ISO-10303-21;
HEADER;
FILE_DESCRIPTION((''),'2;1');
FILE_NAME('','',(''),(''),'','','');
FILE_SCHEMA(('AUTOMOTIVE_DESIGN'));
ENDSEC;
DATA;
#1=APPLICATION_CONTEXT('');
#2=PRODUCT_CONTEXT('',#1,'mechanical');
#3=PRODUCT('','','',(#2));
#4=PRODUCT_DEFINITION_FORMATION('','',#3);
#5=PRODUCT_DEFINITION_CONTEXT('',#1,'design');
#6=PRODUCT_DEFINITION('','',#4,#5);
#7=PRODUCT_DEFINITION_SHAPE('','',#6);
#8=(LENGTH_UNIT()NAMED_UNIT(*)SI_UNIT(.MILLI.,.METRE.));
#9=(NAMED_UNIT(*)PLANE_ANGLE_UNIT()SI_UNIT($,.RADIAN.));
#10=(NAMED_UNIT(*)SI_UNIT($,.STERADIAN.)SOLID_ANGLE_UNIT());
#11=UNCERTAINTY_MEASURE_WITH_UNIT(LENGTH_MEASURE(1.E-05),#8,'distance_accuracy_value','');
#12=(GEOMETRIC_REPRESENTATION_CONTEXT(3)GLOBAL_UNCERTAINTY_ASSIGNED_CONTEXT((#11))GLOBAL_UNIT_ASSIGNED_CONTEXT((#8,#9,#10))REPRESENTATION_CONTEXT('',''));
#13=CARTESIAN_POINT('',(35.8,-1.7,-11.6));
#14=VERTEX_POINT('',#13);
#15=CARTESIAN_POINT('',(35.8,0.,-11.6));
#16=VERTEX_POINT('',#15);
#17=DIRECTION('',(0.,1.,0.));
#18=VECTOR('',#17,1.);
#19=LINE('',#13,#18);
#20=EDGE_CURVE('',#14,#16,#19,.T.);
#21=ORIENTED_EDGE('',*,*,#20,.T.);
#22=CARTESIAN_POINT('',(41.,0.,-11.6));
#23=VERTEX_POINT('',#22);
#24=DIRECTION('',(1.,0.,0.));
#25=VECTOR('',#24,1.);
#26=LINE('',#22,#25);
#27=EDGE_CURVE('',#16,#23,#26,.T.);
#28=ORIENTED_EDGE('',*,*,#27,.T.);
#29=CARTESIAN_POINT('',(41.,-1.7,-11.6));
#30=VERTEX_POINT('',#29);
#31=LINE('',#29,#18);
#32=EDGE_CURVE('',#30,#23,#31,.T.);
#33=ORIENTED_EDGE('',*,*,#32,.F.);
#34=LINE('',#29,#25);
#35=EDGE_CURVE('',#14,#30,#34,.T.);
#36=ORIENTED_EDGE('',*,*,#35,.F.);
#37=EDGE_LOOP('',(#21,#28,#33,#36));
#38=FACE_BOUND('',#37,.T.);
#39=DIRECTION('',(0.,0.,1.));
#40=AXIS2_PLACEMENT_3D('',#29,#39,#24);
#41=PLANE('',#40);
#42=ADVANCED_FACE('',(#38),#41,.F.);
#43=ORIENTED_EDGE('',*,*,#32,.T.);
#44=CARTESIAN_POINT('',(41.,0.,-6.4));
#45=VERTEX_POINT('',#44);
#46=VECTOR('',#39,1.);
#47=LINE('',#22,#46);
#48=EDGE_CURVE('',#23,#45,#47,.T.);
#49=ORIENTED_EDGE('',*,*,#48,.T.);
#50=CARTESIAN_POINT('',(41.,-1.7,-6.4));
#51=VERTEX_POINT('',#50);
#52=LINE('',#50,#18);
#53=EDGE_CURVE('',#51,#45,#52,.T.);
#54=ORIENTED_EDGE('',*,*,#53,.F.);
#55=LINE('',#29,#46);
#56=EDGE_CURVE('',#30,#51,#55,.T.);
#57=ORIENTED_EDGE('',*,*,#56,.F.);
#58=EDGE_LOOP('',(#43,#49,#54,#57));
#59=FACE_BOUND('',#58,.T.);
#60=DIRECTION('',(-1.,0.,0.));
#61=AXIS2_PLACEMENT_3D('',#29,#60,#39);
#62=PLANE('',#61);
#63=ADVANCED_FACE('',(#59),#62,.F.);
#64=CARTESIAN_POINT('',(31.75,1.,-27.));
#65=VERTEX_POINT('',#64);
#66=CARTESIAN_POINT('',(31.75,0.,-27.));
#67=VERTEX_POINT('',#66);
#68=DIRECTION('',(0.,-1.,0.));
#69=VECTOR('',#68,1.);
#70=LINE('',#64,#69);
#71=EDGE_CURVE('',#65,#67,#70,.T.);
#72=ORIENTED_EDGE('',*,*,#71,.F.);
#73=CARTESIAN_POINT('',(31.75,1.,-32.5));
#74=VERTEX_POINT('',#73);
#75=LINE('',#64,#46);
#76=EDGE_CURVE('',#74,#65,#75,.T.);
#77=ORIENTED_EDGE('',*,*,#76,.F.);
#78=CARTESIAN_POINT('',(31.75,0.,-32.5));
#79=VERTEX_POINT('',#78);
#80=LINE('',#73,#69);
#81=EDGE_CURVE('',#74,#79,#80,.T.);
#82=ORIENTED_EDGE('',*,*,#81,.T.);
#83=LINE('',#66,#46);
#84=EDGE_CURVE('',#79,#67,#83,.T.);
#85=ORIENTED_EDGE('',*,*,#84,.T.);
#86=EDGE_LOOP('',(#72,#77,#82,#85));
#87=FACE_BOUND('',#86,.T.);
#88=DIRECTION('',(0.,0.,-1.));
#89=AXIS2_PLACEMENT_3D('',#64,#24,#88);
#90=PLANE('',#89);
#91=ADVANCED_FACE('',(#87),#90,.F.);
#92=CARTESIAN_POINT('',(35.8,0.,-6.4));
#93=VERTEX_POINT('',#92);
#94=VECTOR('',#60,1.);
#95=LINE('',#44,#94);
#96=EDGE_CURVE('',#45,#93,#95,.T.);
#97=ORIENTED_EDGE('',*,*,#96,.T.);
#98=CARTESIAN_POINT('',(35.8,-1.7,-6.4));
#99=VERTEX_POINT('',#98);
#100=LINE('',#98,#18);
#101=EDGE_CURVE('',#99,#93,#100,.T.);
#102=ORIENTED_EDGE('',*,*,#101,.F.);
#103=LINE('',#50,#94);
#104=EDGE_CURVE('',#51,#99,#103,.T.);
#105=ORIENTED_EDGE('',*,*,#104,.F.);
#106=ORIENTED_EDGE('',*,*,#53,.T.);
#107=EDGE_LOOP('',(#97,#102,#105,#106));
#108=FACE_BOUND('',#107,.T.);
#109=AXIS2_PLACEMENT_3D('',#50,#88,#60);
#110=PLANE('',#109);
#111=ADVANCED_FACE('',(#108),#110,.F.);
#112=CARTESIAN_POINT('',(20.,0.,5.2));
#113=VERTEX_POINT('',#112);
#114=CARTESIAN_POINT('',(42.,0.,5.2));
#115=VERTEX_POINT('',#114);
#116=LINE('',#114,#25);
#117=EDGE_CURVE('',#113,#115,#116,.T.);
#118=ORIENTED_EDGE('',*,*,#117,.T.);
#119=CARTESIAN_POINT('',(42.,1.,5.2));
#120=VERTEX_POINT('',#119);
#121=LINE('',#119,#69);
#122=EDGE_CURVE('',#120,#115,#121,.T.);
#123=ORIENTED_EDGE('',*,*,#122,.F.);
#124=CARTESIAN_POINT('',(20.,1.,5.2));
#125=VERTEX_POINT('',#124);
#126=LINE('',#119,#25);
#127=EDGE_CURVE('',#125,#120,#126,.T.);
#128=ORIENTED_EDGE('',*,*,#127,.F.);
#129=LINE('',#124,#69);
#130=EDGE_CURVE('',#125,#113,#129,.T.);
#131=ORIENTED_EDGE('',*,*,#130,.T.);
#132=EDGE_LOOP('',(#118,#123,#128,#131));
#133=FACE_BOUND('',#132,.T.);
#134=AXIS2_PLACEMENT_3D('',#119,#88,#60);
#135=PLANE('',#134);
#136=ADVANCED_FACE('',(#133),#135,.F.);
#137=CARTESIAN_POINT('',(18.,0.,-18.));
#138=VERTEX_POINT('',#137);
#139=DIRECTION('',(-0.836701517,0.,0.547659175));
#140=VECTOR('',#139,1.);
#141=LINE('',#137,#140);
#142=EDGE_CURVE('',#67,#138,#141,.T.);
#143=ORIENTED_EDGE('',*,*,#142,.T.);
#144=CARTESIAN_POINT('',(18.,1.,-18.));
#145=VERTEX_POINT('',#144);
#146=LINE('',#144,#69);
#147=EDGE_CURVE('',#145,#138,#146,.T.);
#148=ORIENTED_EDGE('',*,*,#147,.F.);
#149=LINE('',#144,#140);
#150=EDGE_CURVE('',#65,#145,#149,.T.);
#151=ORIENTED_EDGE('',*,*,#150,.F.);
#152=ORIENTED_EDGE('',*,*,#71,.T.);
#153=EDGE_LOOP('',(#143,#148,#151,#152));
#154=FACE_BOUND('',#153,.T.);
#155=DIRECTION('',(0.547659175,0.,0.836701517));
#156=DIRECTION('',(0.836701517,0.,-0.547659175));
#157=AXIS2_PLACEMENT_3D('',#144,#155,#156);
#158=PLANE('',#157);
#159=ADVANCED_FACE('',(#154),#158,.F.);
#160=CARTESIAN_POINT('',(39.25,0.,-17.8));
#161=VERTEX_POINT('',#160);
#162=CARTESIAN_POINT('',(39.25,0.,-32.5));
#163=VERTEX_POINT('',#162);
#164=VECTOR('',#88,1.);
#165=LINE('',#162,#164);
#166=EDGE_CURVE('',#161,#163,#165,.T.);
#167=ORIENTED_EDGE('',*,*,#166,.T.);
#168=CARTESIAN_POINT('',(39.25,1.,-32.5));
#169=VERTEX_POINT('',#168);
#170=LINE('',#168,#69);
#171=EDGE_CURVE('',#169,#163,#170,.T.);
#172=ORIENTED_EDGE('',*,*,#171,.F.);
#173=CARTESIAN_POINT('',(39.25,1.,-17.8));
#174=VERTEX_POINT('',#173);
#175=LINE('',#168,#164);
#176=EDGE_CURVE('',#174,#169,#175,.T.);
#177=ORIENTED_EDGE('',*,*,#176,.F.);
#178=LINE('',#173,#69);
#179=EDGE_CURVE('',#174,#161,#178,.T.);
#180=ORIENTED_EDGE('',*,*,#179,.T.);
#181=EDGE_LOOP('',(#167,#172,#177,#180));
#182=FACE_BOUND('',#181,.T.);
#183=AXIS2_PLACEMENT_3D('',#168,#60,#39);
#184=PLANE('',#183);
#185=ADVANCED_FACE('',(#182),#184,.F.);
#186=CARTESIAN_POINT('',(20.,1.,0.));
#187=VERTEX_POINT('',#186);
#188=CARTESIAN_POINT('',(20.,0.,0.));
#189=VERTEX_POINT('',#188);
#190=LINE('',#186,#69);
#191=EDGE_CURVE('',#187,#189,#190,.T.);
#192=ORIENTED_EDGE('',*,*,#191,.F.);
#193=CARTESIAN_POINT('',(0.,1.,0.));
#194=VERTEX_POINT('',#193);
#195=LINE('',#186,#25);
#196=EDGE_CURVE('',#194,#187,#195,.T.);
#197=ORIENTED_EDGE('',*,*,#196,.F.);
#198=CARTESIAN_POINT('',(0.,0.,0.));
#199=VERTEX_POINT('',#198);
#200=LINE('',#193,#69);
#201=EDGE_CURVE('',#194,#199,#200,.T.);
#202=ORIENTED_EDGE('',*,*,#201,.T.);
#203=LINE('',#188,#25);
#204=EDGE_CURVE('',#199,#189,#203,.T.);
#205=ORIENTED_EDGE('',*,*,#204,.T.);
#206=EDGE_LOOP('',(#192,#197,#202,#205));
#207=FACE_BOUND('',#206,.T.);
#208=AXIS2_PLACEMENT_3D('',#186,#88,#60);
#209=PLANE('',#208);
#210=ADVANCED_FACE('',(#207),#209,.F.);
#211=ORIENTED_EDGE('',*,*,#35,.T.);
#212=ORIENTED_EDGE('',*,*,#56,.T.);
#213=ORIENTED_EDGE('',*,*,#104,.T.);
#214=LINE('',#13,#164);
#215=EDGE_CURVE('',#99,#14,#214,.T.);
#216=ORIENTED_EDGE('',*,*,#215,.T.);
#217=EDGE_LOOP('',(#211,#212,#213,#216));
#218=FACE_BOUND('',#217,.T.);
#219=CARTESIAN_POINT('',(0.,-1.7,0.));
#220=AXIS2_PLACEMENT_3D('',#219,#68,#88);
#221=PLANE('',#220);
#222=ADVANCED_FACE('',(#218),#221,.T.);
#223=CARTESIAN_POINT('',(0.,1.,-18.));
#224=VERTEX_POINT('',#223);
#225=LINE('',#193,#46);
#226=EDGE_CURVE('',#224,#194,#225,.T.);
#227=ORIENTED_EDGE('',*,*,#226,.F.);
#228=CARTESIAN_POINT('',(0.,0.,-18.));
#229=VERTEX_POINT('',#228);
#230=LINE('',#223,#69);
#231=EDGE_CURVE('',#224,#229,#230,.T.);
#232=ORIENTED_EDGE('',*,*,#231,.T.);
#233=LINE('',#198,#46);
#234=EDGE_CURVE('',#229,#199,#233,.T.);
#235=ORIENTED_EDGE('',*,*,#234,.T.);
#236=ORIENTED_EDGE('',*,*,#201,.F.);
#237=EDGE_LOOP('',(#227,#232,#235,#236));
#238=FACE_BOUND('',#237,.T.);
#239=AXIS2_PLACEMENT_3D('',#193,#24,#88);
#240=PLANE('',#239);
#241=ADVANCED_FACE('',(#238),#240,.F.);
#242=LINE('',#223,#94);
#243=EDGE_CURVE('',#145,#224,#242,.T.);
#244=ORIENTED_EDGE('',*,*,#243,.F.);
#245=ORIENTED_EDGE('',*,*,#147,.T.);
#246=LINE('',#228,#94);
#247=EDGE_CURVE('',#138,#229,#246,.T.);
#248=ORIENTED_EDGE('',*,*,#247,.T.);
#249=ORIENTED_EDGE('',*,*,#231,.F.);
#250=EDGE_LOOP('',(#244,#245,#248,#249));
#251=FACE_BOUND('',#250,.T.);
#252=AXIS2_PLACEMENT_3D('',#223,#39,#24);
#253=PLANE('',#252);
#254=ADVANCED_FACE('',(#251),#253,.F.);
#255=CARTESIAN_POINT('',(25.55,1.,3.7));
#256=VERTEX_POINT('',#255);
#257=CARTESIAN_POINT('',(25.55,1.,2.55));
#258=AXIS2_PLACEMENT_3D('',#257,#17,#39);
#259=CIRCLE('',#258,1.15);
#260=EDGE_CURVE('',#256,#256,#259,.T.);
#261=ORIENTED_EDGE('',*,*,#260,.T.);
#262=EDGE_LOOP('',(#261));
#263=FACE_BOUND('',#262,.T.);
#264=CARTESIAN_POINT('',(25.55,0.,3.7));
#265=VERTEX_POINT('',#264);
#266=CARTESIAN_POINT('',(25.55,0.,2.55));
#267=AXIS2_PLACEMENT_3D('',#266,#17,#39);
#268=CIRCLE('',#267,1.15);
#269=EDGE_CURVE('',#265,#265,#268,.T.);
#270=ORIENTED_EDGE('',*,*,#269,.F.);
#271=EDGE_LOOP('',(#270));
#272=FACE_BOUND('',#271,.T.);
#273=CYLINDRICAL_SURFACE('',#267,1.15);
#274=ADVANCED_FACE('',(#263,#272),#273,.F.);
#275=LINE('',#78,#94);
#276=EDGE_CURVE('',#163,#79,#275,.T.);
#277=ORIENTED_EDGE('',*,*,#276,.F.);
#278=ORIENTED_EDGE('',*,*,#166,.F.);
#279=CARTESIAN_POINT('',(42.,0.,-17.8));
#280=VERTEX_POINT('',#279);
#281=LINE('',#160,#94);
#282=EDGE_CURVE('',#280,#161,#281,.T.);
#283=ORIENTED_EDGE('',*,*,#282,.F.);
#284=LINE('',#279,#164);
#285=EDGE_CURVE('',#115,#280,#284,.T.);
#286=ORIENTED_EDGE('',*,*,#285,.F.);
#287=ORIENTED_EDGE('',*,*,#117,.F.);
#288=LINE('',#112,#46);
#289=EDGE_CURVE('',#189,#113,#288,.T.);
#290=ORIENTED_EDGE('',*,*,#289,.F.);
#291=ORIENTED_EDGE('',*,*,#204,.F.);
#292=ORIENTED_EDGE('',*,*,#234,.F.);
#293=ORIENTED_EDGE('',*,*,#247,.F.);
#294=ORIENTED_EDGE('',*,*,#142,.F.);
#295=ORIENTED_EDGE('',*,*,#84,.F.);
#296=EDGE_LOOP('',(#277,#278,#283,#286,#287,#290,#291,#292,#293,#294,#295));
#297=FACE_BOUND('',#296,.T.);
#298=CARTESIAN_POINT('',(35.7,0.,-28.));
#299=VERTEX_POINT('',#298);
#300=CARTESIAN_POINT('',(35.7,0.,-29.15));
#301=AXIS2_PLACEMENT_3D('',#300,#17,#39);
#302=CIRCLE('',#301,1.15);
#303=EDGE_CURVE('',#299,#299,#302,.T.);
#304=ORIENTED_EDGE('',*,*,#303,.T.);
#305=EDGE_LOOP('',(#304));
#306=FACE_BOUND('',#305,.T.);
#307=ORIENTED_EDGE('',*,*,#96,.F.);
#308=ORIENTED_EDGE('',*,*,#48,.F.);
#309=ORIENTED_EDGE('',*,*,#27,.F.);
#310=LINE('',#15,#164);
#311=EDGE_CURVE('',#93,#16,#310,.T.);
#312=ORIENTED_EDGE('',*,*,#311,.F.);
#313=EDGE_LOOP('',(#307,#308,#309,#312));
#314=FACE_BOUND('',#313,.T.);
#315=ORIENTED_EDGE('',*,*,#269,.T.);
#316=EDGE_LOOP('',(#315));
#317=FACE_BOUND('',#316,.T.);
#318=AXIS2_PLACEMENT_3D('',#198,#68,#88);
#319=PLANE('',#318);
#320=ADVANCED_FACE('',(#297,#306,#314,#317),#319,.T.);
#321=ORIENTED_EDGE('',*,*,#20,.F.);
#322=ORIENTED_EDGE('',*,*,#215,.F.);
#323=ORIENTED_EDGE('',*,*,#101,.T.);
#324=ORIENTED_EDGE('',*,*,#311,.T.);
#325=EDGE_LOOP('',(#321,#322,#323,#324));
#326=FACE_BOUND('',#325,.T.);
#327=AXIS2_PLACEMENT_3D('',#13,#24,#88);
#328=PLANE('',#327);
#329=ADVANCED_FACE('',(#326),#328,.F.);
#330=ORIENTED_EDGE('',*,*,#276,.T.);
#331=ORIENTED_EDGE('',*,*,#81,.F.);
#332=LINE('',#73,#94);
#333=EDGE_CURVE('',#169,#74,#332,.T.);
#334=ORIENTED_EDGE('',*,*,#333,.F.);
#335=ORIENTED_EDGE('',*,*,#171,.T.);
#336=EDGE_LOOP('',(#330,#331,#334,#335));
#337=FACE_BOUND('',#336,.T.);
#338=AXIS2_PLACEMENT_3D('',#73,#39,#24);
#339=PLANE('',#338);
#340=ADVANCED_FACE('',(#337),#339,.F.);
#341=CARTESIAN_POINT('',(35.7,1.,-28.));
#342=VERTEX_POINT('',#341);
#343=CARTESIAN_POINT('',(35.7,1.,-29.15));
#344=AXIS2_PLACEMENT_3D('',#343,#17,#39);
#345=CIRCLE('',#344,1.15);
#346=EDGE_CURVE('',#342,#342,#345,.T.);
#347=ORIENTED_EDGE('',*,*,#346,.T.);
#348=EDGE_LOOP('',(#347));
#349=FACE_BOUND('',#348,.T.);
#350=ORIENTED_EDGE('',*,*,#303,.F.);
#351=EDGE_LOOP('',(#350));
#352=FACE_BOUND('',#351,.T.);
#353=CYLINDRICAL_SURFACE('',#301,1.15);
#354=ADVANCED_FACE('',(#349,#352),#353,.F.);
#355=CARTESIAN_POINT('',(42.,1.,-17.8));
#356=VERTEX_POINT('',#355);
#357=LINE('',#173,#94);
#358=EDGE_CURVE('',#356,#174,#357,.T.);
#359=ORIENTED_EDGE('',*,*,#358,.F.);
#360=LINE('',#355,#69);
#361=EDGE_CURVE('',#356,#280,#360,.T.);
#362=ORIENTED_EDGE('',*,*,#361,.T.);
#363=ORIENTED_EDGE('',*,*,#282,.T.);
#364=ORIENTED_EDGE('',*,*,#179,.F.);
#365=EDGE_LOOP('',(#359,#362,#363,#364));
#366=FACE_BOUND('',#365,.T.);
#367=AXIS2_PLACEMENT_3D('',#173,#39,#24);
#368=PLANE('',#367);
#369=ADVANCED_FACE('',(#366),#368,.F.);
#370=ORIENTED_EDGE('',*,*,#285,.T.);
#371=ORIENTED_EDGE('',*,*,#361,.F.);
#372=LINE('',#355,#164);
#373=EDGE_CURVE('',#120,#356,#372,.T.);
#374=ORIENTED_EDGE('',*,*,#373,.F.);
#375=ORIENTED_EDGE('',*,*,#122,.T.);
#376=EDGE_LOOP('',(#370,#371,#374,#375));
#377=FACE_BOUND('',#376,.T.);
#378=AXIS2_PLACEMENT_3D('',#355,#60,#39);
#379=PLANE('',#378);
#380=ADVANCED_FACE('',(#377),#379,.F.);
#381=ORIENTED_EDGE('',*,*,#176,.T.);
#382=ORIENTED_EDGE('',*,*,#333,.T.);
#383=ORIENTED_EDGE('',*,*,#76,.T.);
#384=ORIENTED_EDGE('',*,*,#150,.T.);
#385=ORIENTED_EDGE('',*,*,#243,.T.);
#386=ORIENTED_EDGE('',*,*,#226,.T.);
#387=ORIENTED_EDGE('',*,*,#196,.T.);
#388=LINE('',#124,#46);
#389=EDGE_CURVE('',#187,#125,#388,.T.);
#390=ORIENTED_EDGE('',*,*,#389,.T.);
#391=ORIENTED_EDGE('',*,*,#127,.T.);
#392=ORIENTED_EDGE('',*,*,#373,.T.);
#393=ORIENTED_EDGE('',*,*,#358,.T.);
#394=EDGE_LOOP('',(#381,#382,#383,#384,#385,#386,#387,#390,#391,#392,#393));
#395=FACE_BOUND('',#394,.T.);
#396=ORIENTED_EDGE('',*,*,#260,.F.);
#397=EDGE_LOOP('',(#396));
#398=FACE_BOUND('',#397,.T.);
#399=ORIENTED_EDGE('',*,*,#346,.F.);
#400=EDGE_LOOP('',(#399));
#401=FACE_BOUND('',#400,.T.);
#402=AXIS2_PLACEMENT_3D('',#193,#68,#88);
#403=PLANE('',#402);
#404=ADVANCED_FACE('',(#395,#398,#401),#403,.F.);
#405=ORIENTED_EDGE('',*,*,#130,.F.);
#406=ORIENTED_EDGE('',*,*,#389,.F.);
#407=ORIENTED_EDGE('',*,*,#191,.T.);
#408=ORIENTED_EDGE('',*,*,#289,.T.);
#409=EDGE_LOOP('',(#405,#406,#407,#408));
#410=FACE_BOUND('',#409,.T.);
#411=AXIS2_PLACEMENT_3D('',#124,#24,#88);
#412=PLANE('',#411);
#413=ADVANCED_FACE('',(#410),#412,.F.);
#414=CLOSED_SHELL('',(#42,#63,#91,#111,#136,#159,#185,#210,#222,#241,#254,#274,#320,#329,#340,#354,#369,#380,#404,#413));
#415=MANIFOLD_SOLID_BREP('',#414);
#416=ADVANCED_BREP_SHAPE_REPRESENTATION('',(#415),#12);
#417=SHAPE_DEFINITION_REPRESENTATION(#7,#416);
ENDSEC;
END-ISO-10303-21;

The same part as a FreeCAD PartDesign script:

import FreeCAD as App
import Part
import Sketcher

doc = App.newDocument("Part")
body = doc.addObject("PartDesign::Body", "Body")

# Sketch on XZ plane
sketch1 = body.newObject("Sketcher::SketchObject", "Sketch")
sketch1.AttachmentSupport = (doc.getObject("XZ_Plane"), [""])
sketch1.MapMode = "FlatFace"
sketch1.addGeometry(Part.LineSegment(App.Vector(0, -18, 0), App.Vector(0, 0, 0)), False)
sketch1.addGeometry(Part.LineSegment(App.Vector(0, 0, 0), App.Vector(20, 0, 0)), False)
sketch1.addGeometry(Part.LineSegment(App.Vector(20, 0, 0), App.Vector(20, 5.2, 0)), False)
sketch1.addGeometry(Part.LineSegment(App.Vector(20, 5.2, 0), App.Vector(42, 5.2, 0)), False)
sketch1.addGeometry(Part.LineSegment(App.Vector(42, 5.2, 0), App.Vector(42, -17.8, 0)), False)
sketch1.addGeometry(Part.LineSegment(App.Vector(42, -17.8, 0), App.Vector(39.2, -17.8, 0)), False)
sketch1.addGeometry(Part.LineSegment(App.Vector(39.2, -17.8, 0), App.Vector(39.2, -32.5, 0)), False)
sketch1.addGeometry(Part.LineSegment(App.Vector(39.2, -32.5, 0), App.Vector(31.8, -32.5, 0)), False)
sketch1.addGeometry(Part.LineSegment(App.Vector(31.8, -32.5, 0), App.Vector(31.8, -27, 0)), False)
sketch1.addGeometry(Part.LineSegment(App.Vector(31.8, -27, 0), App.Vector(18, -18, 0)), False)
sketch1.addGeometry(Part.LineSegment(App.Vector(18, -18, 0), App.Vector(0, -18, 0)), False)
sketch1.addConstraint(Sketcher.Constraint("Coincident", 0, 2, 1, 1))
sketch1.addConstraint(Sketcher.Constraint("Coincident", 1, 2, 2, 1))
sketch1.addConstraint(Sketcher.Constraint("Coincident", 2, 2, 3, 1))
sketch1.addConstraint(Sketcher.Constraint("Coincident", 3, 2, 4, 1))
sketch1.addConstraint(Sketcher.Constraint("Coincident", 4, 2, 5, 1))
sketch1.addConstraint(Sketcher.Constraint("Coincident", 5, 2, 6, 1))
sketch1.addConstraint(Sketcher.Constraint("Coincident", 6, 2, 7, 1))
sketch1.addConstraint(Sketcher.Constraint("Coincident", 7, 2, 8, 1))
sketch1.addConstraint(Sketcher.Constraint("Coincident", 8, 2, 9, 1))
sketch1.addConstraint(Sketcher.Constraint("Coincident", 9, 2, 10, 1))
sketch1.addConstraint(Sketcher.Constraint("Coincident", 10, 2, 0, 1))
sketch1.addConstraint(Sketcher.Constraint("Vertical", 0))
sketch1.addConstraint(Sketcher.Constraint("Horizontal", 1))
sketch1.addConstraint(Sketcher.Constraint("Vertical", 2))
sketch1.addConstraint(Sketcher.Constraint("Horizontal", 3))
sketch1.addConstraint(Sketcher.Constraint("Vertical", 4))
sketch1.addConstraint(Sketcher.Constraint("Horizontal", 5))
sketch1.addConstraint(Sketcher.Constraint("Vertical", 6))
sketch1.addConstraint(Sketcher.Constraint("Horizontal", 7))
sketch1.addConstraint(Sketcher.Constraint("Vertical", 8))
sketch1.addConstraint(Sketcher.Constraint("Horizontal", 10))
sketch1.addConstraint(Sketcher.Constraint("Coincident", 0, 2, -1, 1))
sketch1.addConstraint(Sketcher.Constraint("Equal", 10, 0))
sketch1.addConstraint(Sketcher.Constraint("DistanceX", 1, 1, 1, 2, 20.0))
sketch1.addConstraint(Sketcher.Constraint("DistanceX", 3, 1, 3, 2, 22.0))
sketch1.addConstraint(Sketcher.Constraint("DistanceX", 10, 2, 10, 1, 18.0))
sketch1.addConstraint(Sketcher.Constraint("DistanceY", 4, 2, 4, 1, 23.0))
sketch1.addConstraint(Sketcher.Constraint("DistanceX", 7, 2, 7, 1, 7.5))
sketch1.addConstraint(Sketcher.Constraint("DistanceY", 2, 1, 2, 2, 5.2))
sketch1.addConstraint(Sketcher.Constraint("DistanceY", 6, 2, 6, 1, 14.7))
sketch1.addConstraint(Sketcher.Constraint("DistanceY", 8, 1, 8, 2, 5.5))
sketch1.addConstraint(Sketcher.Constraint("DistanceX", 5, 2, 5, 1, 2.75))
pad1 = body.newObject("PartDesign::Pad", "Pad")
pad1.Profile = sketch1
pad1.Length = 1
pad1.Reversed = True

# Sketch on XZ plane
sketch2 = body.newObject("Sketcher::SketchObject", "Sketch001")
sketch2.AttachmentSupport = (doc.getObject("XZ_Plane"), [""])
sketch2.MapMode = "FlatFace"
sketch2.AttachmentOffset = App.Placement(App.Vector(0, 0, -1), App.Rotation())
sketch2.addGeometry(Part.Circle(App.Vector(35.7, -29.1, 0), App.Vector(0, 0, 1), 1.1), False)
sketch2.addConstraint(Sketcher.Constraint("Diameter", 0, 2.3))
sketch2.addConstraint(Sketcher.Constraint("DistanceX", -1, 1, 0, 3, 35.7))
sketch2.addConstraint(Sketcher.Constraint("DistanceY", 0, 3, -1, 1, 29.15))
pocket1 = body.newObject("PartDesign::Pocket", "Pocket")
pocket1.Profile = sketch2
pocket1.Type = "ThroughAll"
pocket1.Reversed = True

# Sketch on XZ plane
sketch3 = body.newObject("Sketcher::SketchObject", "Sketch002")
sketch3.AttachmentSupport = (doc.getObject("XZ_Plane"), [""])
sketch3.MapMode = "FlatFace"
sketch3.AttachmentOffset = App.Placement(App.Vector(0, 0, -1), App.Rotation())
sketch3.addGeometry(Part.Circle(App.Vector(25.6, 2.5, 0), App.Vector(0, 0, 1), 1.1), False)
sketch3.addConstraint(Sketcher.Constraint("Diameter", 0, 2.3))
sketch3.addConstraint(Sketcher.Constraint("DistanceX", -1, 1, 0, 3, 25.55))
sketch3.addConstraint(Sketcher.Constraint("DistanceY", -1, 1, 0, 3, 2.55))
pocket2 = body.newObject("PartDesign::Pocket", "Pocket001")
pocket2.Profile = sketch3
pocket2.Type = "ThroughAll"
pocket2.Reversed = True

# Sketch on XZ plane
sketch4 = body.newObject("Sketcher::SketchObject", "Sketch003")
sketch4.AttachmentSupport = (doc.getObject("XZ_Plane"), [""])
sketch4.MapMode = "FlatFace"
sketch4.addGeometry(Part.LineSegment(App.Vector(36, -6, 0), App.Vector(36, -12, 0)), False)
sketch4.addGeometry(Part.LineSegment(App.Vector(36, -12, 0), App.Vector(41, -12, 0)), False)
sketch4.addGeometry(Part.LineSegment(App.Vector(41, -12, 0), App.Vector(41, -6, 0)), False)
sketch4.addGeometry(Part.LineSegment(App.Vector(41, -6, 0), App.Vector(36, -6, 0)), False)
sketch4.addConstraint(Sketcher.Constraint("Coincident", 0, 2, 1, 1))
sketch4.addConstraint(Sketcher.Constraint("Coincident", 1, 2, 2, 1))
sketch4.addConstraint(Sketcher.Constraint("Coincident", 2, 2, 3, 1))
sketch4.addConstraint(Sketcher.Constraint("Coincident", 3, 2, 0, 1))
sketch4.addConstraint(Sketcher.Constraint("Vertical", 0))
sketch4.addConstraint(Sketcher.Constraint("Horizontal", 1))
sketch4.addConstraint(Sketcher.Constraint("Vertical", 2))
sketch4.addConstraint(Sketcher.Constraint("Horizontal", 3))
sketch4.addConstraint(Sketcher.Constraint("Equal", 3, 0))
sketch4.addConstraint(Sketcher.Constraint("DistanceX", 1, 1, 1, 2, 5.2))
sketch4.addConstraint(Sketcher.Constraint("DistanceX", -1, 1, 1, 2, 41.0))
sketch4.addConstraint(Sketcher.Constraint("DistanceY", 0, 2, -1, 1, 11.6))
pad2 = body.newObject("PartDesign::Pad", "Pad001")
pad2.Profile = sketch4
pad2.Length = 1.7

doc.recompute()
